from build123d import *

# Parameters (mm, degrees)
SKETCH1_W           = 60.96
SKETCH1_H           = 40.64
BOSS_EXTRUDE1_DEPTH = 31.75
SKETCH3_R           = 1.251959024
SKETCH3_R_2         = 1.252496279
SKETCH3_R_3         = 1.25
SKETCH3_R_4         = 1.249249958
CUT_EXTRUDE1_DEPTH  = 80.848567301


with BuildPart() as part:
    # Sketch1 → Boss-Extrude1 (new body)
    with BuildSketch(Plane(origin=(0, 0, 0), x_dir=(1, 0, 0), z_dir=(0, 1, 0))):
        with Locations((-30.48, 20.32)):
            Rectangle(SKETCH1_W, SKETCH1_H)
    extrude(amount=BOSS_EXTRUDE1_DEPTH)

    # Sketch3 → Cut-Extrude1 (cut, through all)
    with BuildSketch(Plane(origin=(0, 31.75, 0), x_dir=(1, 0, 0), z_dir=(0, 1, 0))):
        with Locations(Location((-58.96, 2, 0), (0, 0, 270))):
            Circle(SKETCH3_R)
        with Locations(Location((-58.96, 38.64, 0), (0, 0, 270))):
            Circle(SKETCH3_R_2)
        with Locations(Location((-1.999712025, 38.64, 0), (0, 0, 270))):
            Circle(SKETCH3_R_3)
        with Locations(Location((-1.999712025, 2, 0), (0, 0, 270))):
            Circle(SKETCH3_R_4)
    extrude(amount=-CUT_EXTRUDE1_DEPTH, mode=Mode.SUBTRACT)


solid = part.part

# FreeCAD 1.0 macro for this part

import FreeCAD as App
import Part
import Sketcher
Q = App.Units.Quantity

doc = App.newDocument("Part")
body = doc.addObject("PartDesign::Body", "Body")

# Sketch on XZ plane
sketch1 = body.newObject("Sketcher::SketchObject", "Sketch")
sketch1.AttachmentSupport = (doc.getObject("XZ_Plane"), [""])
sketch1.MapMode = "FlatFace"
sketch1.addGeometry([
    Part.LineSegment(App.Vector(-61, -41, 0), App.Vector(-61, 0, 0)),
    Part.LineSegment(App.Vector(-61, 0, 0), App.Vector(0, 0, 0)),
    Part.LineSegment(App.Vector(0, 0, 0), App.Vector(0, -41, 0)),
    Part.LineSegment(App.Vector(0, -41, 0), App.Vector(-61, -41, 0)),
], False)
sketch1.addConstraint([
    Sketcher.Constraint("Coincident", 0, 2, 1, 1),
    Sketcher.Constraint("Coincident", 1, 2, 2, 1),
    Sketcher.Constraint("Coincident", 2, 2, 3, 1),
    Sketcher.Constraint("Coincident", 3, 2, 0, 1),
    Sketcher.Constraint("Vertical", 0),
    Sketcher.Constraint("Horizontal", 1),
    Sketcher.Constraint("Vertical", 2),
    Sketcher.Constraint("Horizontal", 3),
    Sketcher.Constraint("Coincident", 1, 2, -1, 1),
    Sketcher.Constraint("DistanceX", 1, 1, 1, 2, Q("2.4 in")),
    Sketcher.Constraint("DistanceY", 0, 1, 0, 2, Q("1.6 in")),
])
pad1 = body.newObject("PartDesign::Pad", "Pad")
pad1.Profile = sketch1
pad1.Length = Q("1.25 in")
pad1.Reversed = True

# Sketch on XZ plane
sketch2 = body.newObject("Sketcher::SketchObject", "Sketch001")
sketch2.AttachmentSupport = (doc.getObject("XZ_Plane"), [""])
sketch2.MapMode = "FlatFace"
sketch2.AttachmentOffset = App.Placement(App.Vector(0, 0, -1.25 * 25.4), App.Rotation())
sketch2.addGeometry([
    Part.Circle(App.Vector(-59, -2, 0), App.Vector(0, 0, 1), 1.3),
    Part.Circle(App.Vector(-59, -38.6, 0), App.Vector(0, 0, 1), 1.3),
    Part.Circle(App.Vector(-2, -38.6, 0), App.Vector(0, 0, 1), 1.2),
    Part.Circle(App.Vector(-2, -2, 0), App.Vector(0, 0, 1), 1.2),
], False)
sketch2.addConstraint([
    Sketcher.Constraint("Horizontal", 1, 3, 2, 3),
    Sketcher.Constraint("Horizontal", 0, 3, 3, 3),
    Sketcher.Constraint("Vertical", 0, 3, 1, 3),
    Sketcher.Constraint("Vertical", 2, 3, 3, 3),
    Sketcher.Constraint("Diameter", 2, Q("2.5 mm")),
    Sketcher.Constraint("Diameter", 3, Q("2.4985 mm")),
    Sketcher.Constraint("Diameter", 0, Q("2.503918 mm")),
    Sketcher.Constraint("Diameter", 1, Q("2.504993 mm")),
    Sketcher.Constraint("DistanceX", 0, 3, -1, 1, Q("58.96 mm")),
    Sketcher.Constraint("DistanceY", 0, 3, -1, 1, Q("2 mm")),
    Sketcher.Constraint("DistanceY", 1, 3, -1, 1, Q("38.64 mm")),
    Sketcher.Constraint("DistanceX", 2, 3, -1, 1, Q("1.999712 mm")),
])
pocket1 = body.newObject("PartDesign::Pocket", "Pocket")
pocket1.Profile = sketch2
pocket1.Type = "ThroughAll"
pocket1.Reversed = True

doc.recompute()
